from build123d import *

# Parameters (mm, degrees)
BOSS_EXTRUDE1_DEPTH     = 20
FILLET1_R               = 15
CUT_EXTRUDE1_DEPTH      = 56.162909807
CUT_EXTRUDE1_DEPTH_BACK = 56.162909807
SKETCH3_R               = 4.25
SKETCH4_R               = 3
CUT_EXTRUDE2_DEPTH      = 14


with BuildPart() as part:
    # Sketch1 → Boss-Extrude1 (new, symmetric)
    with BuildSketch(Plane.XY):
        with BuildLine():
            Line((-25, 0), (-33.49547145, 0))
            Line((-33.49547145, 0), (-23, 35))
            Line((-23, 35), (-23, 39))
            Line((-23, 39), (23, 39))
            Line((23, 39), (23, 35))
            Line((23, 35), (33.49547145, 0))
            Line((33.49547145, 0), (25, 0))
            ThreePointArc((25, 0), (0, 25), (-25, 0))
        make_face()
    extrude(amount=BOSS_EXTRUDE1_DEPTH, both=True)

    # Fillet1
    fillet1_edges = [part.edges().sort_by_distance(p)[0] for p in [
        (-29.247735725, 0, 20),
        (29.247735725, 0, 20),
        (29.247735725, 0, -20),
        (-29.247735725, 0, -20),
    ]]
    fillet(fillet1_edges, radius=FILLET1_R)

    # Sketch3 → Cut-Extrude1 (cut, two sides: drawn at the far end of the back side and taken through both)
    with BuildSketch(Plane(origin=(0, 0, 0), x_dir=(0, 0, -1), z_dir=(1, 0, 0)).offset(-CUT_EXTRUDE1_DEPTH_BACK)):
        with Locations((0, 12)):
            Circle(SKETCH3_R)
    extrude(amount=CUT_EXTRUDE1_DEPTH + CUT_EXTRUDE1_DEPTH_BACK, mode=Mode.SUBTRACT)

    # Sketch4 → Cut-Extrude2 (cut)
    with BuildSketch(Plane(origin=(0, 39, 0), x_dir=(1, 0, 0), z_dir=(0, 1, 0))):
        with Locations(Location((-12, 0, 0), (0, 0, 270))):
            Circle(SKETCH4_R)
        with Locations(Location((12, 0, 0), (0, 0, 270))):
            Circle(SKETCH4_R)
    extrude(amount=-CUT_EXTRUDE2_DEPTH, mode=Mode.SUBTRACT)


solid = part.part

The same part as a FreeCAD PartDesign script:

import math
import FreeCAD as App
import Part
import Sketcher


def edges_at(feature, points):
    """Names of the edges that pass closest to the given points."""
    edges = feature.Shape.Edges
    near = lambda p: min(range(len(edges)), key=lambda i: edges[i].distToShape(Part.Vertex(*p))[0])
    return sorted({f"Edge{near(p) + 1}" for p in points})

doc = App.newDocument("Part")
body = doc.addObject("PartDesign::Body", "Body")

# Sketch on XY plane
sketch1 = body.newObject("Sketcher::SketchObject", "Sketch")
sketch1.AttachmentSupport = (doc.getObject("XY_Plane"), [""])
sketch1.MapMode = "FlatFace"
sketch1.addGeometry([
    Part.LineSegment(App.Vector(-33.5, 0, 0), App.Vector(-25, 0, 0)),  # 0
    Part.ArcOfCircle(Part.Circle(App.Vector(0, 0, 0), App.Vector(0, 0, 1), 25), math.radians(0), math.radians(180)),  # 1
    Part.LineSegment(App.Vector(25, 0, 0), App.Vector(33.5, 0, 0)),  # 2
    Part.LineSegment(App.Vector(33.5, 0, 0), App.Vector(23, 35, 0)),  # 3
    Part.LineSegment(App.Vector(23, 35, 0), App.Vector(23, 39, 0)),  # 4
    Part.LineSegment(App.Vector(23, 39, 0), App.Vector(-23, 39, 0)),  # 5
    Part.LineSegment(App.Vector(-23, 39, 0), App.Vector(-23, 35, 0)),  # 6
    Part.LineSegment(App.Vector(-23, 35, 0), App.Vector(-33.5, 0, 0)),  # 7
], False)
sketch1.addConstraint([
    Sketcher.Constraint("Coincident", 0, 2, 1, 2),
    Sketcher.Constraint("Coincident", 1, 1, 2, 1),
    Sketcher.Constraint("Coincident", 2, 2, 3, 1),
    Sketcher.Constraint("Coincident", 3, 2, 4, 1),
    Sketcher.Constraint("Coincident", 4, 2, 5, 1),
    Sketcher.Constraint("Coincident", 5, 2, 6, 1),
    Sketcher.Constraint("Coincident", 6, 2, 7, 1),
    Sketcher.Constraint("Coincident", 7, 2, 0, 1),
    Sketcher.Constraint("Horizontal", 0),
    Sketcher.Constraint("Horizontal", 2),
    Sketcher.Constraint("Vertical", 4),
    Sketcher.Constraint("Horizontal", 5),
    Sketcher.Constraint("Vertical", 6),
    Sketcher.Constraint("Coincident", 1, 3, -1, 1),
    Sketcher.Constraint("Symmetric", 2, 2, 7, 2, -1, 1),
    Sketcher.Constraint("Symmetric", 3, 2, 6, 2, -2),
    Sketcher.Constraint("PointOnObject", 0, 2, -1),
    Sketcher.Constraint("Radius", 1, 25.0),
    Sketcher.Constraint("DistanceX", 5, 2, 5, 1, 46.0),
    Sketcher.Constraint("DistanceY", 4, 1, 4, 2, 4.0),
    Sketcher.Constraint("DistanceY", -1, 1, 3, 2, 35.0),
    Sketcher.Constraint("DistanceX", 0, 1, 0, 2, 8.495471),
])
pad1 = body.newObject("PartDesign::Pad", "Pad")
pad1.Profile = sketch1
pad1.Length = 40
pad1.Midplane = True
doc.recompute()

fillet = body.newObject("PartDesign::Fillet", "Fillet")
fillet.Base = (pad1, edges_at(pad1, [
    (-29.248, 0, 20),
    (29.248, 0, 20),
    (29.248, 0, -20),
    (-29.248, 0, -20),
]))
fillet.Radius = 15

# Sketch on YZ plane
sketch2 = body.newObject("Sketcher::SketchObject", "Sketch001")
sketch2.AttachmentSupport = (doc.getObject("YZ_Plane"), [""])
sketch2.MapMode = "FlatFace"
sketch2.addGeometry(Part.Circle(App.Vector(12, 0, 0), App.Vector(0, 0, 1), 4.2), False)
sketch2.addConstraint([
    Sketcher.Constraint("PointOnObject", 0, 3, -1),
    Sketcher.Constraint("Diameter", 0, 8.5),
    Sketcher.Constraint("DistanceX", -1, 1, 0, 3, 12.0),
])
pocket1 = body.newObject("PartDesign::Pocket", "Pocket")
pocket1.Profile = sketch2
pocket1.Type = "ThroughAll"
pocket1.Midplane = True

# Sketch on XZ plane
sketch3 = body.newObject("Sketcher::SketchObject", "Sketch002")
sketch3.AttachmentSupport = (doc.getObject("XZ_Plane"), [""])
sketch3.MapMode = "FlatFace"
sketch3.AttachmentOffset = App.Placement(App.Vector(0, 0, -39), App.Rotation())
sketch3.addGeometry([
    Part.Circle(App.Vector(-12, 0, 0), App.Vector(0, 0, 1), 3),
    Part.Circle(App.Vector(12, 0, 0), App.Vector(0, 0, 1), 3),
], False)
sketch3.addConstraint([
    Sketcher.Constraint("Equal", 0, 1),
    Sketcher.Constraint("Symmetric", 0, 3, 1, 3, -1, 1),
    Sketcher.Constraint("PointOnObject", 0, 3, -1),
    Sketcher.Constraint("Diameter", 0, 6.0),
    Sketcher.Constraint("DistanceX", 0, 3, -1, 1, 12.0),
])
pocket2 = body.newObject("PartDesign::Pocket", "Pocket001")
pocket2.Profile = sketch3
pocket2.Length = 14
pocket2.Reversed = True

doc.recompute()
